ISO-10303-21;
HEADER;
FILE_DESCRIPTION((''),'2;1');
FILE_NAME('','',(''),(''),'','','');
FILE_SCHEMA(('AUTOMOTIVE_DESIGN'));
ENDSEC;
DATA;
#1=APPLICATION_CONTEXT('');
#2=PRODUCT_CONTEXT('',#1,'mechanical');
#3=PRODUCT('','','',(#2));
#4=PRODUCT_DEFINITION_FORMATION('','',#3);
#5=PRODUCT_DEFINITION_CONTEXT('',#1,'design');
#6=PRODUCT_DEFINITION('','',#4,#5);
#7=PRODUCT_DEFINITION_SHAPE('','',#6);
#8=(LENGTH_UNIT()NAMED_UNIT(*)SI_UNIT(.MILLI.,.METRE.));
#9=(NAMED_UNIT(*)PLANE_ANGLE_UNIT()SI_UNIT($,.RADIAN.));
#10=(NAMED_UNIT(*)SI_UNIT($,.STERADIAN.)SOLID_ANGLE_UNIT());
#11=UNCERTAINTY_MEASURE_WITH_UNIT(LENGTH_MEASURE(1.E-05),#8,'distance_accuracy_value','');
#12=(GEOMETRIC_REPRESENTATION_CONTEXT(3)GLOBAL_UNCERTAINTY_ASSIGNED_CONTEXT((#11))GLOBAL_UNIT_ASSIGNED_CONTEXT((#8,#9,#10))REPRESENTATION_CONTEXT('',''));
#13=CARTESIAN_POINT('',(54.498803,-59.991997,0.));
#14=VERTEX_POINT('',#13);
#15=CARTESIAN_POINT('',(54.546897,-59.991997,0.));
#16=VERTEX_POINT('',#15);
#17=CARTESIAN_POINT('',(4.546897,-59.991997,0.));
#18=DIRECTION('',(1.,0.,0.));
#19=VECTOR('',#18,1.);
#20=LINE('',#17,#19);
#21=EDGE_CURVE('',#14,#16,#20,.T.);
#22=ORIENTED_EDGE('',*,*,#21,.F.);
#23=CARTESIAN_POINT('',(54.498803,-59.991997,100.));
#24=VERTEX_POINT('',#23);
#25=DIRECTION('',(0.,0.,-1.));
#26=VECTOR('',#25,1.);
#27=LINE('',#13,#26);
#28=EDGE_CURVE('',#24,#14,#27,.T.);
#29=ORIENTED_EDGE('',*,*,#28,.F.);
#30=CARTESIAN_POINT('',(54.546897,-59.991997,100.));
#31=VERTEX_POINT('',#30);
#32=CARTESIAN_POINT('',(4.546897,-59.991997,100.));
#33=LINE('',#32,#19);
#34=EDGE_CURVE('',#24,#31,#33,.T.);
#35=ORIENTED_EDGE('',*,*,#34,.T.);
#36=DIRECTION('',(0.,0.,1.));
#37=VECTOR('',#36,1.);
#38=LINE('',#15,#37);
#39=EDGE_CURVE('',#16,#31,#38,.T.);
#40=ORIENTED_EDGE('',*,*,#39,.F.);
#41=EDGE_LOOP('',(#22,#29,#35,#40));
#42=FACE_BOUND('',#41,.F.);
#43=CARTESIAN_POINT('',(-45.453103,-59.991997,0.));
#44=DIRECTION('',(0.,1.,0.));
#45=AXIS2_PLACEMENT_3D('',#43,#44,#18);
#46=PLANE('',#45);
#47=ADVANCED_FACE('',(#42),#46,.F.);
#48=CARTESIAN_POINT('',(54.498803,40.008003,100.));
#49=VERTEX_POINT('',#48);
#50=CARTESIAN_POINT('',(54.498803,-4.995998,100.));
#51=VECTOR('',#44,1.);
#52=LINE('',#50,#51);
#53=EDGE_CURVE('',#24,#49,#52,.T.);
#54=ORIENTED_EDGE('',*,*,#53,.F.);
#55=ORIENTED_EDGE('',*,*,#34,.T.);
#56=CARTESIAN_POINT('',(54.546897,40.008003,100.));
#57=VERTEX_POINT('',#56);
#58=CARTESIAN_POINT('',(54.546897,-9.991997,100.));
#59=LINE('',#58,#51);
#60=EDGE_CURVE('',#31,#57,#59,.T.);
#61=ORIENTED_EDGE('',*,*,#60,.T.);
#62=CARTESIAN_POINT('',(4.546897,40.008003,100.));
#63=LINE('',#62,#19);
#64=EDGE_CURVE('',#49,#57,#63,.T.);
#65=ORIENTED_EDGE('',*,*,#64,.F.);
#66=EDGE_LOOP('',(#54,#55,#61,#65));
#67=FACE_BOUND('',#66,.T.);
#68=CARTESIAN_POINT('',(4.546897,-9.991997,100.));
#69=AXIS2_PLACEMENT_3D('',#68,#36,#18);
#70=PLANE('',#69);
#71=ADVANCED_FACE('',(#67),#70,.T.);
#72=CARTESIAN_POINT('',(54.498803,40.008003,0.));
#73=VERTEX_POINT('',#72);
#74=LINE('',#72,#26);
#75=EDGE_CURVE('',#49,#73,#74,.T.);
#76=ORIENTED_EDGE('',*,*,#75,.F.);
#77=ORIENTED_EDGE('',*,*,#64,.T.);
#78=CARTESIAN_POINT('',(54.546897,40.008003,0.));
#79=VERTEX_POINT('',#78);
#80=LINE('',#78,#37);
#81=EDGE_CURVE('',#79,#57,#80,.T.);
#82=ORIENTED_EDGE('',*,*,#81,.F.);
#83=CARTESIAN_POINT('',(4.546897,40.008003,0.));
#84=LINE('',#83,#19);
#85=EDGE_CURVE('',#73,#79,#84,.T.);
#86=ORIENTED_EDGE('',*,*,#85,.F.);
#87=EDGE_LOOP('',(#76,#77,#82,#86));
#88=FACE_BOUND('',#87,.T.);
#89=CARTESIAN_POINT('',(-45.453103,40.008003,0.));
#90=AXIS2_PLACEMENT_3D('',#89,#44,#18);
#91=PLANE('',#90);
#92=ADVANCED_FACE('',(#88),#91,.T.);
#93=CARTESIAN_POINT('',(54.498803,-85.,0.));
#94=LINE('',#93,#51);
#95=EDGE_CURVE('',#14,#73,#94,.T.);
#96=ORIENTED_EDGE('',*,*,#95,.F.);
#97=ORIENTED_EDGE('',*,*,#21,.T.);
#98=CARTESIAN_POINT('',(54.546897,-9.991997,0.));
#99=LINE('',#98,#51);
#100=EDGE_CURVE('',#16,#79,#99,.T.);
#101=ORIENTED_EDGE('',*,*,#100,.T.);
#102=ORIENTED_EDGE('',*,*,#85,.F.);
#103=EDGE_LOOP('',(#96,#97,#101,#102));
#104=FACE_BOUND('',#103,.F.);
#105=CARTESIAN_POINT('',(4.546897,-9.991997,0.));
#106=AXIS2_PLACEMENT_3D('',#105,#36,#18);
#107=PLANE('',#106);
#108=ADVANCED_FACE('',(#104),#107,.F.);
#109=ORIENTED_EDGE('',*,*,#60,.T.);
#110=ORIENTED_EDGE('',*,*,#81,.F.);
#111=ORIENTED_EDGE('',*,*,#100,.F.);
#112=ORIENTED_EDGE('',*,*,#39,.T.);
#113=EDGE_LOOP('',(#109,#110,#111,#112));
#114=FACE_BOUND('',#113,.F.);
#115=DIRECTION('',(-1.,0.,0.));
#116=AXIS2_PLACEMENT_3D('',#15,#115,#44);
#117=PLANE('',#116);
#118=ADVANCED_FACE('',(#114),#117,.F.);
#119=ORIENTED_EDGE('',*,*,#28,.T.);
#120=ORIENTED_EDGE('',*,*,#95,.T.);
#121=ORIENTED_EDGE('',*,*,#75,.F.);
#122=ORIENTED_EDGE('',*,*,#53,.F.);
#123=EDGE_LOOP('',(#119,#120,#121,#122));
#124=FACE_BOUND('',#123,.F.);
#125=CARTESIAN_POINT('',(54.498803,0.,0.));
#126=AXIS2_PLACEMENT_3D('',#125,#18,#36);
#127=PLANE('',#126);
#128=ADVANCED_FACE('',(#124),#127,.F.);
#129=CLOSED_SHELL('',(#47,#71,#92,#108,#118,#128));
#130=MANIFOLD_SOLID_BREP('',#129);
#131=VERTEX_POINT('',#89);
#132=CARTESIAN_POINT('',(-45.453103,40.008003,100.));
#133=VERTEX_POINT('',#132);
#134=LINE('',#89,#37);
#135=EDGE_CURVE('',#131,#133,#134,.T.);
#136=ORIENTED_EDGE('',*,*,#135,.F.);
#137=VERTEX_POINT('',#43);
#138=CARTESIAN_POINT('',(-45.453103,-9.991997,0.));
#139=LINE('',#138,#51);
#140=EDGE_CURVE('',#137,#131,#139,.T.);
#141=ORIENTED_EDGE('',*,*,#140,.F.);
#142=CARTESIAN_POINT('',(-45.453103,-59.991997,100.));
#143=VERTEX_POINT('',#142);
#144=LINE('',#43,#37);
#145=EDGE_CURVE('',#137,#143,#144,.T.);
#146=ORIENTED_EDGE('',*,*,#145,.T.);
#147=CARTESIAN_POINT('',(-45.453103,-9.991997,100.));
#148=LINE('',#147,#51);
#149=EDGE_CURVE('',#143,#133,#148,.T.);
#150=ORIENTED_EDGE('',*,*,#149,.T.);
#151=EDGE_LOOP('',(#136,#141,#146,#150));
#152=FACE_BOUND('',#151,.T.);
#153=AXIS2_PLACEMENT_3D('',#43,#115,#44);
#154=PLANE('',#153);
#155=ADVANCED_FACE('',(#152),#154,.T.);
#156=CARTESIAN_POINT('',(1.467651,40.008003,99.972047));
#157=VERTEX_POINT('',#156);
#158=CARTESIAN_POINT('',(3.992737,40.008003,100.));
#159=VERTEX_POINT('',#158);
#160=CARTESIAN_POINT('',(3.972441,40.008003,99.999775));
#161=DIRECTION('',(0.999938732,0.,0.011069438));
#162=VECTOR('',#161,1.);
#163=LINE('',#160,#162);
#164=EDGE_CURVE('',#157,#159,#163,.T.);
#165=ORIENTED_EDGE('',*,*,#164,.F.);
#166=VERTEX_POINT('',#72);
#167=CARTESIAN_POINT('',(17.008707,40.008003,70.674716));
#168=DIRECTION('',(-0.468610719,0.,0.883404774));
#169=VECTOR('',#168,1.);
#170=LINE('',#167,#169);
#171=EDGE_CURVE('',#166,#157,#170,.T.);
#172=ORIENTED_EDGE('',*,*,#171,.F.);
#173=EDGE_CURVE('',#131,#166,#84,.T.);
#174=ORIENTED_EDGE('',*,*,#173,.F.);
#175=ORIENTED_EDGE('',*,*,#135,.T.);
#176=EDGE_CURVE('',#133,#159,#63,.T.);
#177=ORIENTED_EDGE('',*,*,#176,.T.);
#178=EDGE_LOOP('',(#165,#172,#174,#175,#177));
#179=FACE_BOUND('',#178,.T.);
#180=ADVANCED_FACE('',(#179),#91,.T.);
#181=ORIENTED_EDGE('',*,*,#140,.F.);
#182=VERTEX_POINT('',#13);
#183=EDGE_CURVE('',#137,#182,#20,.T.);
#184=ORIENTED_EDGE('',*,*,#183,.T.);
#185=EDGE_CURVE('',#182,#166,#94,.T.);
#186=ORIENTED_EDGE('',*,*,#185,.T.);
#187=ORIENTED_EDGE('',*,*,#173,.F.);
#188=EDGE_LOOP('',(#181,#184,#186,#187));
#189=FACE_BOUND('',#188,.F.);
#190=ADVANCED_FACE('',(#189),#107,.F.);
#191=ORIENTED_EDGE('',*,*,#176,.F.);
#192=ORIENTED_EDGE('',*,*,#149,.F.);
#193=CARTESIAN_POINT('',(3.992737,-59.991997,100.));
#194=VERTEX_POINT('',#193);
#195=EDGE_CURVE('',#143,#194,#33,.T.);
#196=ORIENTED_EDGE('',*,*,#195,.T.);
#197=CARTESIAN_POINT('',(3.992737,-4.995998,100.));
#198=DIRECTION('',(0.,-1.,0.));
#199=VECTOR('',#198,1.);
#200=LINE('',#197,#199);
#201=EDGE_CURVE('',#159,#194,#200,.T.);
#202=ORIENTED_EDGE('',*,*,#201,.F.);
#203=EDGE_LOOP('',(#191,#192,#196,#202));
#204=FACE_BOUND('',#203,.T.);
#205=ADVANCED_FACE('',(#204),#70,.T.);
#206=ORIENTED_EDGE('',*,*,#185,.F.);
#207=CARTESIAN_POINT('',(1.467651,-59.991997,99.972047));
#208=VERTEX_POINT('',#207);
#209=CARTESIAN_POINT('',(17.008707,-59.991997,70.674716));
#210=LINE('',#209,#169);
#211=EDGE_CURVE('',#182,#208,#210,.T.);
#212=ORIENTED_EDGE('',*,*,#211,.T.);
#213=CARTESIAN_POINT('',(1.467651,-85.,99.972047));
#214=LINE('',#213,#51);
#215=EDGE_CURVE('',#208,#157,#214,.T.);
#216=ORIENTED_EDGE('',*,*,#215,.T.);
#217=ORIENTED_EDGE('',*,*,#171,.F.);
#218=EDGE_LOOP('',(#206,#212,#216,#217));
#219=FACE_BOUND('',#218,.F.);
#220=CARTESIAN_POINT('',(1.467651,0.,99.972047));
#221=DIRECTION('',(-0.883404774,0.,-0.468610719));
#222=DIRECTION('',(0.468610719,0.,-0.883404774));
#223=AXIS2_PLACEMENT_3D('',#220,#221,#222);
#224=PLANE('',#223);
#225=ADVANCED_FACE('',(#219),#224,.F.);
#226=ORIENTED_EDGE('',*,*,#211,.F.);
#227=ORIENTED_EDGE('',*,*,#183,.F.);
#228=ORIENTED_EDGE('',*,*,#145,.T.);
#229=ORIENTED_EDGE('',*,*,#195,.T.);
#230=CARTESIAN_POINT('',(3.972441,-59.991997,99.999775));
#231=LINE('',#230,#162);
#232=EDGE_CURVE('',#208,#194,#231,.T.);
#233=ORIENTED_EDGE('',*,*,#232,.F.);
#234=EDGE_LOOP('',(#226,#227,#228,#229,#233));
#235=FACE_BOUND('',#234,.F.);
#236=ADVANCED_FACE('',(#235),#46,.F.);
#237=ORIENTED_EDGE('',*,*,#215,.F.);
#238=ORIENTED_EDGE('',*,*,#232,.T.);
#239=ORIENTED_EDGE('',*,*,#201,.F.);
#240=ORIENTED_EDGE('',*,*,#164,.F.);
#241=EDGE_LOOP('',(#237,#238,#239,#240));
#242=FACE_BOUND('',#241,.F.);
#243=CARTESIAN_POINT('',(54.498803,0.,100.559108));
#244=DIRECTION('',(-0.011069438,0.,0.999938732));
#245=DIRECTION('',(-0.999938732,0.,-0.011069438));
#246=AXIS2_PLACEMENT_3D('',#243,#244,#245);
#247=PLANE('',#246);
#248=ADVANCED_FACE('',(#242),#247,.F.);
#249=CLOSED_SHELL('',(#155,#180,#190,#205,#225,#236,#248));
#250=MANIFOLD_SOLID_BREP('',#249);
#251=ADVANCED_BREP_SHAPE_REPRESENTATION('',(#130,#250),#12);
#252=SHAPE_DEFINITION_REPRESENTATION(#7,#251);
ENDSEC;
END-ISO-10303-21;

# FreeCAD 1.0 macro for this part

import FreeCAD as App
import Part
import Sketcher
Q = App.Units.Quantity

doc = App.newDocument("Part")
body = doc.addObject("PartDesign::Body", "Body")
body.AllowCompound = True

# Sketch on XY plane
sketch1 = body.newObject("Sketcher::SketchObject", "Sketch")
sketch1.AttachmentSupport = (doc.getObject("XY_Plane"), [""])
sketch1.MapMode = "FlatFace"
sketch1.addGeometry([
    Part.LineSegment(App.Vector(-45.453103, 40.008003, 0), App.Vector(-45.453103, -59.991997, 0)),
    Part.LineSegment(App.Vector(-45.453103, -59.991997, 0), App.Vector(54.546897, -59.991997, 0)),
    Part.LineSegment(App.Vector(54.546897, -59.991997, 0), App.Vector(54.546897, 40.008003, 0)),
    Part.LineSegment(App.Vector(54.546897, 40.008003, 0), App.Vector(-45.453103, 40.008003, 0)),
], False)
sketch1.addConstraint([
    Sketcher.Constraint("Coincident", 0, 2, 1, 1),
    Sketcher.Constraint("Coincident", 1, 2, 2, 1),
    Sketcher.Constraint("Coincident", 2, 2, 3, 1),
    Sketcher.Constraint("Coincident", 3, 2, 0, 1),
    Sketcher.Constraint("Vertical", 0),
    Sketcher.Constraint("Horizontal", 1),
    Sketcher.Constraint("Vertical", 2),
    Sketcher.Constraint("Horizontal", 3),
    Sketcher.Constraint("Equal", 3, 0),
    Sketcher.Constraint("DistanceX", 1, 1, 1, 2, Q("100 mm")),
    Sketcher.Constraint("DistanceX", 0, 2, -1, 1, Q("45.453103 mm")),
    Sketcher.Constraint("DistanceY", 0, 2, -1, 1, Q("59.991997 mm")),
])
pad1 = body.newObject("PartDesign::Pad", "Pad")
pad1.Profile = sketch1
pad1.Length = 100

# Sketch on XZ plane
sketch2 = body.newObject("Sketcher::SketchObject", "Sketch001")
sketch2.AttachmentSupport = (doc.getObject("XZ_Plane"), [""])
sketch2.MapMode = "FlatFace"
sketch2.addGeometry([
    Part.LineSegment(App.Vector(54.498803, 0, 0), App.Vector(54.498803, 100.559108, 0)),
    Part.LineSegment(App.Vector(54.498803, 100.559108, 0), App.Vector(1.467651, 99.972047, 0)),
    Part.LineSegment(App.Vector(1.467651, 99.972047, 0), App.Vector(54.498803, 0, 0)),
], False)
sketch2.addConstraint([
    Sketcher.Constraint("Coincident", 0, 2, 1, 1),
    Sketcher.Constraint("Coincident", 1, 2, 2, 1),
    Sketcher.Constraint("Coincident", 2, 2, 0, 1),
    Sketcher.Constraint("Vertical", 0),
    Sketcher.Constraint("PointOnObject", 2, 2, -1),
    Sketcher.Constraint("Distance", 1, Q("53.034401 mm")),
    Sketcher.Constraint("Distance", 2, Q("113.16675 mm")),
    Sketcher.Constraint("DistanceY", 0, 1, 0, 2, Q("100.559108 mm")),
    Sketcher.Constraint("DistanceX", -1, 1, 1, 2, Q("1.467651 mm")),
])
pocket1 = body.newObject("PartDesign::Pocket", "Pocket")
pocket1.Profile = sketch2
pocket1.Length = 170
pocket1.Midplane = True

doc.recompute()
